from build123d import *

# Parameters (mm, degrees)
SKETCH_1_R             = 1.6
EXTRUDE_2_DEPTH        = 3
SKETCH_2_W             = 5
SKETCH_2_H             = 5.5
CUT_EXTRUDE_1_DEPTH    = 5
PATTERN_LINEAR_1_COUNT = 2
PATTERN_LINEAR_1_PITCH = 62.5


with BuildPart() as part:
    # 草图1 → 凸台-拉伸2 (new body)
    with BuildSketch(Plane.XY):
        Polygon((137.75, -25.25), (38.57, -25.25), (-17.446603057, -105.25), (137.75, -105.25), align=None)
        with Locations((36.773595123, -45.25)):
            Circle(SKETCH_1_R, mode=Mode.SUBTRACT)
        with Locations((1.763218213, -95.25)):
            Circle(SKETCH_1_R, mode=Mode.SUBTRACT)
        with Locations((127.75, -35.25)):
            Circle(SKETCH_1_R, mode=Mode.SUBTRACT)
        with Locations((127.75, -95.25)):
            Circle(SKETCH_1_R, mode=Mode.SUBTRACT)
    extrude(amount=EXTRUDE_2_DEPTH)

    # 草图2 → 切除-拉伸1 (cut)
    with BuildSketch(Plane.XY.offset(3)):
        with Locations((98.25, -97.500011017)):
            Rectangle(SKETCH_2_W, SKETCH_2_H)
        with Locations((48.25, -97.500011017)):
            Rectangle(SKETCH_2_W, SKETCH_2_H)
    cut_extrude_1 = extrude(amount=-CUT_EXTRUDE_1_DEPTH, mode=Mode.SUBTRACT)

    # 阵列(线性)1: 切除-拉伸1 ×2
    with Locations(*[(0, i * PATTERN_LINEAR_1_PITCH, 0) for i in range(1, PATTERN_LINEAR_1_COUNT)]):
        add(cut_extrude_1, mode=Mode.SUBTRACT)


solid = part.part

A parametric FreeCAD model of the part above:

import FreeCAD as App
import Part
import Sketcher

V = App.Vector
Q = App.Units.Quantity


def add_polygon(sketch, points):
    """Adds a closed chain of lines whose ends are joined by coincident constraints."""
    first, n = sketch.GeometryCount, len(points)
    for a, b in zip(points, points[1:] + points[:1]):
        sketch.addGeometry(Part.LineSegment(App.Vector(*a, 0), App.Vector(*b, 0)), False)
    for i in range(n):
        sketch.addConstraint(Sketcher.Constraint("Coincident", first + i, 2, first + (i + 1) % n, 1))

doc = App.newDocument("Part")
body = doc.addObject("PartDesign::Body", "Body")

sketch1 = body.newObject("Sketcher::SketchObject", "Sketch")
sketch1.AttachmentSupport = (doc.getObject("XY_Plane"), [""])
sketch1.MapMode = "FlatFace"
add_polygon(sketch1, [(137.8, -25.2), (38.6, -25.2), (-17.4, -105.2), (137.8, -105.2)])
sketch1.addGeometry(Part.Circle(V(1.8, -95.2, 0), V(0, 0, 1), 1.6), False)
sketch1.addGeometry(Part.Circle(V(127.8, -95.2, 0), V(0, 0, 1), 1.6), False)
sketch1.addGeometry(Part.Circle(V(36.8, -45.2, 0), V(0, 0, 1), 1.6), False)
sketch1.addGeometry(Part.Circle(V(127.8, -35.2, 0), V(0, 0, 1), 1.6), False)
sketch1.addConstraint(Sketcher.Constraint("Horizontal", 0))
sketch1.addConstraint(Sketcher.Constraint("Horizontal", 2))
sketch1.addConstraint(Sketcher.Constraint("Vertical", 3))
sketch1.addConstraint(Sketcher.Constraint("Equal", 4, 5))
sketch1.addConstraint(Sketcher.Constraint("Equal", 5, 6))
sketch1.addConstraint(Sketcher.Constraint("Equal", 6, 7))
sketch1.addConstraint(Sketcher.Constraint("Horizontal", 4, 3, 5, 3))
sketch1.addConstraint(Sketcher.Constraint("Vertical", 5, 3, 7, 3))
sketch1.addConstraint(Sketcher.Constraint("Diameter", 4, Q("3.2 mm")))
sketch1.addConstraint(Sketcher.Constraint("DistanceY", 3, 1, 3, 2, Q("80 mm")))
sketch1.addConstraint(Sketcher.Constraint("Angle", 1, Q("-125 deg")))
sketch1.addConstraint(Sketcher.Constraint("DistanceY", 4, 3, 6, 3, Q("50 mm")))
sketch1.addConstraint(Sketcher.Constraint("DistanceY", 5, 3, 7, 3, Q("60 mm")))
sketch1.addConstraint(Sketcher.Constraint("DistanceY", 6, 3, 0, 2, Q("20 mm")))
sketch1.addConstraint(Sketcher.Constraint("DistanceX", 5, 3, 2, 2, Q("10 mm")))
sketch1.addConstraint(Sketcher.Constraint("DistanceX", 0, 2, 0, 1, Q("99.18 mm")))
sketch1.addConstraint(Sketcher.Constraint("DistanceY", 4, 3, -1, 1, Q("95.25 mm")))
sketch1.addConstraint(Sketcher.Constraint("DistanceX", -1, 1, 5, 3, Q("127.75 mm")))
sketch1.addConstraint(Sketcher.Constraint("DistanceX", 1, 2, 6, 3, Q("54.220198 mm")))
sketch1.addConstraint(Sketcher.Constraint("DistanceX", -1, 1, 4, 3, Q("1.763218 mm")))
pad1 = body.newObject("PartDesign::Pad", "Pad")
pad1.Profile = sketch1
pad1.Length = 3

sketch2 = body.newObject("Sketcher::SketchObject", "Sketch001")
sketch2.AttachmentSupport = (doc.getObject("XY_Plane"), [""])
sketch2.MapMode = "FlatFace"
sketch2.AttachmentOffset = App.Placement(V(0, 0, 3), App.Rotation())
add_polygon(sketch2, [(96, -95), (96, -100), (101, -100), (101, -95)])
add_polygon(sketch2, [(46, -95), (46, -100), (51, -100), (51, -95)])
sketch2.addConstraint(Sketcher.Constraint("Vertical", 0))
sketch2.addConstraint(Sketcher.Constraint("Horizontal", 1))
sketch2.addConstraint(Sketcher.Constraint("Vertical", 2))
sketch2.addConstraint(Sketcher.Constraint("Horizontal", 3))
sketch2.addConstraint(Sketcher.Constraint("Vertical", 4))
sketch2.addConstraint(Sketcher.Constraint("Horizontal", 5))
sketch2.addConstraint(Sketcher.Constraint("Vertical", 6))
sketch2.addConstraint(Sketcher.Constraint("Horizontal", 7))
sketch2.addConstraint(Sketcher.Constraint("Horizontal", 1, 2, 4, 2))
sketch2.addConstraint(Sketcher.Constraint("Horizontal", 3, 2, 6, 2))
sketch2.addConstraint(Sketcher.Constraint("Equal", 3, 5))
sketch2.addConstraint(Sketcher.Constraint("DistanceX", 1, 1, 1, 2, Q("5 mm")))
sketch2.addConstraint(Sketcher.Constraint("DistanceY", 0, 2, 0, 1, Q("5.5 mm")))
sketch2.addConstraint(Sketcher.Constraint("DistanceX", 4, 2, 0, 2, Q("50 mm")))
sketch2.addConstraint(Sketcher.Constraint("DistanceX", -1, 1, 0, 2, Q("95.75 mm")))
sketch2.addConstraint(Sketcher.Constraint("DistanceY", 0, 2, -1, 1, Q("100.250011 mm")))
pocket1 = body.newObject("PartDesign::Pocket", "Pocket")
pocket1.Profile = sketch2
pocket1.Length = 5
doc.recompute()

linearpattern = body.newObject("PartDesign::LinearPattern", "LinearPattern")
linearpattern.Originals = [pocket1]
linearpattern.Direction = (doc.getObject("Y_Axis"), [""])
linearpattern.Mode = "offset"
linearpattern.Offset = 62.5
linearpattern.Occurrences = 2
body.Tip = linearpattern

doc.recompute()
